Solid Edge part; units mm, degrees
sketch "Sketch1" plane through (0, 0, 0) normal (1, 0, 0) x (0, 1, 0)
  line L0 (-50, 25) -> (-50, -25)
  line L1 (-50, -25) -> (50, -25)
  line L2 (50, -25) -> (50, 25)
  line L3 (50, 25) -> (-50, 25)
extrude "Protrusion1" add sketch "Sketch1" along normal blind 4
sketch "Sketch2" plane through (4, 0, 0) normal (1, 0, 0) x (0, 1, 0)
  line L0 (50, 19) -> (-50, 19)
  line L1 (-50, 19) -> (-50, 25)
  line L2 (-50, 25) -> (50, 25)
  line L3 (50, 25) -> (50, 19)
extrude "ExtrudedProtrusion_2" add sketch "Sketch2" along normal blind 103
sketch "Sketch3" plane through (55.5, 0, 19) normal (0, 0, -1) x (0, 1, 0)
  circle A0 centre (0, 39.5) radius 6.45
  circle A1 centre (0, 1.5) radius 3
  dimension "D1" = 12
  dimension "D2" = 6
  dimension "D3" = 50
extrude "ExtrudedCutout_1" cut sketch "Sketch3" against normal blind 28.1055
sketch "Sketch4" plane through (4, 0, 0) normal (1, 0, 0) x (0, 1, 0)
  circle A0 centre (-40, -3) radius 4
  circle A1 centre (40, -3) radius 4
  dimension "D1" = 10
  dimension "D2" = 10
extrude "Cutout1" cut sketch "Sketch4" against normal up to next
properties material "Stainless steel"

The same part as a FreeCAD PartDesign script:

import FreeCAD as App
import Part
import Sketcher
Q = App.Units.Quantity


def add_polygon(sketch, points):
    """Adds a closed chain of lines whose ends are joined by coincident constraints."""
    first, n = sketch.GeometryCount, len(points)
    for a, b in zip(points, points[1:] + points[:1]):
        sketch.addGeometry(Part.LineSegment(App.Vector(*a, 0), App.Vector(*b, 0)), False)
    for i in range(n):
        sketch.addConstraint(Sketcher.Constraint("Coincident", first + i, 2, first + (i + 1) % n, 1))

doc = App.newDocument("Part")
body = doc.addObject("PartDesign::Body", "Body")

sketch1 = doc.addObject("Sketcher::SketchObject", "Sketch")
body.addObject(sketch1)
sketch1.AttachmentSupport = (doc.YZ_Plane, [""])
sketch1.MapMode = "FlatFace"
add_polygon(sketch1, [(50, 25), (-50, 25), (-50, -25), (50, -25)])
sketch1.addConstraint(Sketcher.Constraint("Horizontal", 0))
sketch1.addConstraint(Sketcher.Constraint("Vertical", 1))
sketch1.addConstraint(Sketcher.Constraint("Horizontal", 2))
sketch1.addConstraint(Sketcher.Constraint("Vertical", 3))
sketch1.addConstraint(Sketcher.Constraint("Symmetric", 0, 2, 2, 2, -1, 1))
sketch1.addConstraint(Sketcher.Constraint("DistanceX", 0, 2, 0, 1, Q("100 mm")))
sketch1.addConstraint(Sketcher.Constraint("DistanceY", 1, 2, 1, 1, Q("50 mm")))
pad1 = doc.addObject("PartDesign::Pad", "Pad")
body.addObject(pad1)
pad1.Profile = sketch1
pad1.Length = 4

sketch2 = doc.addObject("Sketcher::SketchObject", "Sketch001")
body.addObject(sketch2)
sketch2.AttachmentSupport = (doc.YZ_Plane, [""])
sketch2.MapMode = "FlatFace"
sketch2.AttachmentOffset = App.Placement(App.Vector(0, 0, 4), App.Rotation())
add_polygon(sketch2, [(-50, 19), (50, 19), (50, 25), (-50, 25)])
sketch2.addConstraint(Sketcher.Constraint("Horizontal", 0))
sketch2.addConstraint(Sketcher.Constraint("Vertical", 1))
sketch2.addConstraint(Sketcher.Constraint("Horizontal", 2))
sketch2.addConstraint(Sketcher.Constraint("Vertical", 3))
sketch2.addConstraint(Sketcher.Constraint("DistanceX", 0, 1, 0, 2, Q("100 mm")))
sketch2.addConstraint(Sketcher.Constraint("DistanceY", 1, 1, 1, 2, Q("6 mm")))
sketch2.addConstraint(Sketcher.Constraint("DistanceX", -1, 1, 0, 2, Q("50 mm")))
sketch2.addConstraint(Sketcher.Constraint("DistanceY", -1, 1, 0, 2, Q("19 mm")))
pad2 = doc.addObject("PartDesign::Pad", "Pad001")
body.addObject(pad2)
pad2.Profile = sketch2
pad2.Length = 103

sketch3 = doc.addObject("Sketcher::SketchObject", "Sketch002")
body.addObject(sketch3)
sketch3.AttachmentSupport = (doc.XY_Plane, [""])
sketch3.MapMode = "FlatFace"
sketch3.AttachmentOffset = App.Placement(App.Vector(0, 0, 19), App.Rotation())
sketch3.addGeometry(Part.Circle(App.Vector(95, 0, 0), App.Vector(0, 0, 1), 6.5), False)
sketch3.addGeometry(Part.Circle(App.Vector(57, 0, 0), App.Vector(0, 0, 1), 3), False)
sketch3.addConstraint(Sketcher.Constraint("PointOnObject", 0, 3, -1))
sketch3.addConstraint(Sketcher.Constraint("PointOnObject", 1, 3, -1))
sketch3.addConstraint(Sketcher.Constraint("Diameter", 1, Q("6 mm")))
sketch3.addConstraint(Sketcher.Constraint("Diameter", 0, Q("12.9 mm")))
sketch3.addConstraint(Sketcher.Constraint("DistanceX", -1, 1, 0, 3, Q("95 mm")))
sketch3.addConstraint(Sketcher.Constraint("DistanceX", -1, 1, 1, 3, Q("57 mm")))
pocket1 = doc.addObject("PartDesign::Pocket", "Pocket")
body.addObject(pocket1)
pocket1.Profile = sketch3
pocket1.Length = 28.1055
pocket1.Reversed = True

sketch4 = doc.addObject("Sketcher::SketchObject", "Sketch003")
body.addObject(sketch4)
sketch4.AttachmentSupport = (doc.YZ_Plane, [""])
sketch4.MapMode = "FlatFace"
sketch4.AttachmentOffset = App.Placement(App.Vector(0, 0, 4), App.Rotation())
sketch4.addGeometry(Part.Circle(App.Vector(-40, -3, 0), App.Vector(0, 0, 1), 4), False)
sketch4.addGeometry(Part.Circle(App.Vector(40, -3, 0), App.Vector(0, 0, 1), 4), False)
sketch4.addConstraint(Sketcher.Constraint("Equal", 0, 1))
sketch4.addConstraint(Sketcher.Constraint("Symmetric", 0, 3, 1, 3, -2))
sketch4.addConstraint(Sketcher.Constraint("Diameter", 0, Q("8 mm")))
sketch4.addConstraint(Sketcher.Constraint("DistanceX", 0, 3, -1, 1, Q("40 mm")))
sketch4.addConstraint(Sketcher.Constraint("DistanceY", 0, 3, -1, 1, Q("3 mm")))
pocket2 = doc.addObject("PartDesign::Pocket", "Pocket001")
body.addObject(pocket2)
pocket2.Profile = sketch4
pocket2.Type = "UpToFirst"

doc.recompute()
